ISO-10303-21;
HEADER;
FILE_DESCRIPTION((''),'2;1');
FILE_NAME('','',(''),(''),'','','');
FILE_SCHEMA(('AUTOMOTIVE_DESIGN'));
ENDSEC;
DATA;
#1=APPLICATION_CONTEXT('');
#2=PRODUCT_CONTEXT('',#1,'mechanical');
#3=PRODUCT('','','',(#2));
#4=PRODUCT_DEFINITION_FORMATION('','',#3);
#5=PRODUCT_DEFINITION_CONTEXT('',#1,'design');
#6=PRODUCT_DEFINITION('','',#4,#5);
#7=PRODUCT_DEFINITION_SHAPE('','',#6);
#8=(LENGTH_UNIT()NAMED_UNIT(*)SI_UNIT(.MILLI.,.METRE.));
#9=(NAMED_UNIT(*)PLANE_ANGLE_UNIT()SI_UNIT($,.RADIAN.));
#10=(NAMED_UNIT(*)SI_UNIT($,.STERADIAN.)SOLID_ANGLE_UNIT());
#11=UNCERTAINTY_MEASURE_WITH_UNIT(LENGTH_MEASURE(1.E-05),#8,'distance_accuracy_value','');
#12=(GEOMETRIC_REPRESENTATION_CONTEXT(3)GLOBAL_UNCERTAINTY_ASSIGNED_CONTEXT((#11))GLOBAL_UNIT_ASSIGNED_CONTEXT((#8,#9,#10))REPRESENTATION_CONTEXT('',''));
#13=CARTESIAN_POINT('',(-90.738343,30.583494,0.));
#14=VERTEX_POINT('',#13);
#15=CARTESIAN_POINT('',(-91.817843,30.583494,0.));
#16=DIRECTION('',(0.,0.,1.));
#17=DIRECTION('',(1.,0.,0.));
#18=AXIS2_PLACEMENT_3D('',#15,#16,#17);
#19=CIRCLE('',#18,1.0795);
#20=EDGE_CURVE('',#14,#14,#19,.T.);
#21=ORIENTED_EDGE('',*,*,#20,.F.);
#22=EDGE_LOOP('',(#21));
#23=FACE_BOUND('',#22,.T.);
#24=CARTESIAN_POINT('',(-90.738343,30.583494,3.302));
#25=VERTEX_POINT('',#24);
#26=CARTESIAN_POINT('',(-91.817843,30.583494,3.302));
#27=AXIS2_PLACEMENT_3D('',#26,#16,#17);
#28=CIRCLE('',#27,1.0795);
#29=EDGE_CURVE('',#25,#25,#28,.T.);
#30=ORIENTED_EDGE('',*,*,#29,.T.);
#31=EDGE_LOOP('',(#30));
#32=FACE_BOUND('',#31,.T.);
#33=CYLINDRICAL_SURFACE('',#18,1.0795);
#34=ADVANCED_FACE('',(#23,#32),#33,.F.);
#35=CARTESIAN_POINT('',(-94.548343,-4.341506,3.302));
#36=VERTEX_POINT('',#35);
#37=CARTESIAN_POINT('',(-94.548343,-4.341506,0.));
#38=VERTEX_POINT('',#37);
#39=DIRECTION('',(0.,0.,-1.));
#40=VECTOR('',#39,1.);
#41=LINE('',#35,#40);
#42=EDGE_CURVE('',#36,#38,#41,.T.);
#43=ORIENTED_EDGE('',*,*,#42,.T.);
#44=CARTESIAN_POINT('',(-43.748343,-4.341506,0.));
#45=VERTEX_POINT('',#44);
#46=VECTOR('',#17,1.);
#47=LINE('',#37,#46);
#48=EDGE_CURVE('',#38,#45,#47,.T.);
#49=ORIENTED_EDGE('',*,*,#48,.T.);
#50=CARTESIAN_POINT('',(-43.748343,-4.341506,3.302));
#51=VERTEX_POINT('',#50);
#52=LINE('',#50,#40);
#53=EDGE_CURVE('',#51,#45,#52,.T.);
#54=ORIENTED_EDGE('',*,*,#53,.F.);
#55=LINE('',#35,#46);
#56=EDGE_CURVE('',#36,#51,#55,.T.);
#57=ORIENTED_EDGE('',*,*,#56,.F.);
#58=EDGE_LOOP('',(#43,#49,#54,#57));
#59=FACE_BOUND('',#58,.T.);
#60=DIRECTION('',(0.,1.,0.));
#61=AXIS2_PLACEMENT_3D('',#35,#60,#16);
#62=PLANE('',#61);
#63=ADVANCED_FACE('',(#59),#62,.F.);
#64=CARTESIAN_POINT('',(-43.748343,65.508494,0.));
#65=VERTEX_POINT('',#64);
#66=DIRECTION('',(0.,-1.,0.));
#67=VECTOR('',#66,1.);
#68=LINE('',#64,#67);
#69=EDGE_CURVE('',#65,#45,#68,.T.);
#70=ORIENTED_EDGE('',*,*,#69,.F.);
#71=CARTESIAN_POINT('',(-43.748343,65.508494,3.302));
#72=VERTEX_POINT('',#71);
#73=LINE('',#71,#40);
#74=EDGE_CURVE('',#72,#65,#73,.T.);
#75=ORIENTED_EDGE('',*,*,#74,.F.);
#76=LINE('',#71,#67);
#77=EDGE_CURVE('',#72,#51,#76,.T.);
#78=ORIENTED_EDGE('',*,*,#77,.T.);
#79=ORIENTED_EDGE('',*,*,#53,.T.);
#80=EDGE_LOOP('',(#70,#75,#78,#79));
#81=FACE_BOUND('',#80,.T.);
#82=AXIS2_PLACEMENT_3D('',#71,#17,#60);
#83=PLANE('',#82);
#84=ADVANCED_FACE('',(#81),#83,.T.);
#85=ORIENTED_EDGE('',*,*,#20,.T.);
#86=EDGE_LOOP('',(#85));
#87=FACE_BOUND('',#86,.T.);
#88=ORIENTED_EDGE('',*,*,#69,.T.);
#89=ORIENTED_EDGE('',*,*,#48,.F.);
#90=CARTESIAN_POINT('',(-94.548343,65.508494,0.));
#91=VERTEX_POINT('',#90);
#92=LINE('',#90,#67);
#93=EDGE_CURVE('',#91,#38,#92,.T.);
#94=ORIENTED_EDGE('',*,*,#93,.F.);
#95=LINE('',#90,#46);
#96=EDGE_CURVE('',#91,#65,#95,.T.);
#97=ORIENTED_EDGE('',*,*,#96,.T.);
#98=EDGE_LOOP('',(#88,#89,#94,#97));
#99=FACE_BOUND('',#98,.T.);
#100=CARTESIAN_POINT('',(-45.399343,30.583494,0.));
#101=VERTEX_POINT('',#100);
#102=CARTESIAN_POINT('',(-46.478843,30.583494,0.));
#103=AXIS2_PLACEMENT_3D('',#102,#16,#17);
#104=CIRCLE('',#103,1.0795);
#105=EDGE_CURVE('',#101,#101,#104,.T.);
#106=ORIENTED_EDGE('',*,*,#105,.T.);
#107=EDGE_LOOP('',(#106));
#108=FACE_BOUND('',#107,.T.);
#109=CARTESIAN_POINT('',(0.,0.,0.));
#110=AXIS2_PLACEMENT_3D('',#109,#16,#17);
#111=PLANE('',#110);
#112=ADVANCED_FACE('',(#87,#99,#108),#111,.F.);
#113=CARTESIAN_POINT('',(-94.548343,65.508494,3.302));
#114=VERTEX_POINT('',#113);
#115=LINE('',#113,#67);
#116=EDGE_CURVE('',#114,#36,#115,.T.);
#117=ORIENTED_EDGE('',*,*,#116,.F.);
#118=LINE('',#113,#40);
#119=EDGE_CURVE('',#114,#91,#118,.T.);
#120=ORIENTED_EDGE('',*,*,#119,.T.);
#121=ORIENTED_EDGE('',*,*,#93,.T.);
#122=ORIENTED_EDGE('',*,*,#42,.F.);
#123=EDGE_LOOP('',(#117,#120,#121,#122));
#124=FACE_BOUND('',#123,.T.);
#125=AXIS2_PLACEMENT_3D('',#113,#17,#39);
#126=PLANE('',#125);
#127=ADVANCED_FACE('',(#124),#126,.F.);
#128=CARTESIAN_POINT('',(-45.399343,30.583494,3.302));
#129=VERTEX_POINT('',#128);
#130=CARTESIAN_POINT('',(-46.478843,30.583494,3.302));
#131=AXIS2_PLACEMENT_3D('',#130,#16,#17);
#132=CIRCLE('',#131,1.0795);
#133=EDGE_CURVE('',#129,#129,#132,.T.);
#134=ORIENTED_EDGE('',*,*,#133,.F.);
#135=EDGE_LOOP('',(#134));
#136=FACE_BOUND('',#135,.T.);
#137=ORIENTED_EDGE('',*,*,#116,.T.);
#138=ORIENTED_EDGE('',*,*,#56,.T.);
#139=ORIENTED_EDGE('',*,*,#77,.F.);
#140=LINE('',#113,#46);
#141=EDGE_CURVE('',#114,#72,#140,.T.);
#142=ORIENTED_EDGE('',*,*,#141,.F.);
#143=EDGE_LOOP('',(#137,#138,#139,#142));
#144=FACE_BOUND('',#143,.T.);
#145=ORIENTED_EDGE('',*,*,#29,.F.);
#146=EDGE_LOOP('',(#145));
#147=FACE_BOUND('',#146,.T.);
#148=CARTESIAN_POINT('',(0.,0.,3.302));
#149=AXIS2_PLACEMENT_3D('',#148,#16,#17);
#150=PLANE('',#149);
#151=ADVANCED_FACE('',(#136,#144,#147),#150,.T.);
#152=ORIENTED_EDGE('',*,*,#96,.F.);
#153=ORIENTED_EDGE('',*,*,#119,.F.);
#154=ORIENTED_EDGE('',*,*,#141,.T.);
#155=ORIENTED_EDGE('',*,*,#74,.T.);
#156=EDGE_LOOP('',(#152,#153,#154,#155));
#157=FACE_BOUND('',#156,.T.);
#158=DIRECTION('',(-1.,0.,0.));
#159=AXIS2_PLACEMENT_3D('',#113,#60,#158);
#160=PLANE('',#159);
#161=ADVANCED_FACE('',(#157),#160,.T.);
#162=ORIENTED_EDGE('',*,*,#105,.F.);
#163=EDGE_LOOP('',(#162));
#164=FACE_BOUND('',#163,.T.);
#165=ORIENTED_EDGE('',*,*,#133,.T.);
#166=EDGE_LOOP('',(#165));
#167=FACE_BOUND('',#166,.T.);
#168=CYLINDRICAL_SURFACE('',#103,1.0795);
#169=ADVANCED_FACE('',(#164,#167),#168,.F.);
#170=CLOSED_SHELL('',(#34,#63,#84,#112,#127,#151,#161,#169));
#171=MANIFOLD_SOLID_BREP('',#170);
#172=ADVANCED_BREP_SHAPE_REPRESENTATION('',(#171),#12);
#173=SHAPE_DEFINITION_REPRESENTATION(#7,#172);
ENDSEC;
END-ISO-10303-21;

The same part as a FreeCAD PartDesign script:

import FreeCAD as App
import Part
import Sketcher
from FreeCAD import Vector
Q = App.Units.Quantity

doc = App.newDocument("Part")
body = doc.addObject("PartDesign::Body", "Body")

sketch1 = body.newObject("Sketcher::SketchObject", "Sketch")
sketch1.AttachmentSupport = (doc.getObject("XY_Plane"), [""])
sketch1.MapMode = "FlatFace"
sketch1.addGeometry(Part.LineSegment(Vector(-95, 66, 0), Vector(-95, -4, 0)), False)
sketch1.addGeometry(Part.LineSegment(Vector(-95, -4, 0), Vector(-44, -4, 0)), False)
sketch1.addGeometry(Part.LineSegment(Vector(-44, -4, 0), Vector(-44, 66, 0)), False)
sketch1.addGeometry(Part.LineSegment(Vector(-44, 66, 0), Vector(-95, 66, 0)), False)
sketch1.addConstraint(Sketcher.Constraint("Coincident", 0, 2, 1, 1))
sketch1.addConstraint(Sketcher.Constraint("Coincident", 1, 2, 2, 1))
sketch1.addConstraint(Sketcher.Constraint("Coincident", 2, 2, 3, 1))
sketch1.addConstraint(Sketcher.Constraint("Coincident", 3, 2, 0, 1))
sketch1.addConstraint(Sketcher.Constraint("Vertical", 0))
sketch1.addConstraint(Sketcher.Constraint("Horizontal", 1))
sketch1.addConstraint(Sketcher.Constraint("Vertical", 2))
sketch1.addConstraint(Sketcher.Constraint("Horizontal", 3))
sketch1.addConstraint(Sketcher.Constraint("DistanceX", 1, 1, 1, 2, Q("2 in")))
sketch1.addConstraint(Sketcher.Constraint("DistanceY", 0, 2, 0, 1, Q("2.75 in")))
sketch1.addConstraint(Sketcher.Constraint("DistanceX", 0, 2, -1, 1, 94.548343))
sketch1.addConstraint(Sketcher.Constraint("DistanceY", 0, 2, -1, 1, 4.341506))
pad1 = body.newObject("PartDesign::Pad", "Pad")
pad1.Profile = sketch1
pad1.Length = Q("0.13 in")

sketch2 = body.newObject("Sketcher::SketchObject", "Sketch001")
sketch2.AttachmentSupport = (doc.getObject("XY_Plane"), [""])
sketch2.MapMode = "FlatFace"
sketch2.AttachmentOffset = App.Placement(Vector(0, 0, 0.13 * 25.4), App.Rotation())
sketch2.addGeometry(Part.Circle(Vector(-46.5, 30.6, 0), Vector(0, 0, 1), 1.1), False)
sketch2.addGeometry(Part.Circle(Vector(-91.8, 30.6, 0), Vector(0, 0, 1), 1.1), False)
sketch2.addConstraint(Sketcher.Constraint("Equal", 0, 1))
sketch2.addConstraint(Sketcher.Constraint("Horizontal", 0, 3, 1, 3))
sketch2.addConstraint(Sketcher.Constraint("Diameter", 0, Q("0.085 in")))
sketch2.addConstraint(Sketcher.Constraint("DistanceX", 1, 3, 0, 3, Q("1.785 in")))
sketch2.addConstraint(Sketcher.Constraint("DistanceX", 0, 3, -1, 1, 46.478843))
sketch2.addConstraint(Sketcher.Constraint("DistanceY", -1, 1, 0, 3, 30.583494))
pocket1 = body.newObject("PartDesign::Pocket", "Pocket")
pocket1.Profile = sketch2
pocket1.Type = "ThroughAll"

doc.recompute()
